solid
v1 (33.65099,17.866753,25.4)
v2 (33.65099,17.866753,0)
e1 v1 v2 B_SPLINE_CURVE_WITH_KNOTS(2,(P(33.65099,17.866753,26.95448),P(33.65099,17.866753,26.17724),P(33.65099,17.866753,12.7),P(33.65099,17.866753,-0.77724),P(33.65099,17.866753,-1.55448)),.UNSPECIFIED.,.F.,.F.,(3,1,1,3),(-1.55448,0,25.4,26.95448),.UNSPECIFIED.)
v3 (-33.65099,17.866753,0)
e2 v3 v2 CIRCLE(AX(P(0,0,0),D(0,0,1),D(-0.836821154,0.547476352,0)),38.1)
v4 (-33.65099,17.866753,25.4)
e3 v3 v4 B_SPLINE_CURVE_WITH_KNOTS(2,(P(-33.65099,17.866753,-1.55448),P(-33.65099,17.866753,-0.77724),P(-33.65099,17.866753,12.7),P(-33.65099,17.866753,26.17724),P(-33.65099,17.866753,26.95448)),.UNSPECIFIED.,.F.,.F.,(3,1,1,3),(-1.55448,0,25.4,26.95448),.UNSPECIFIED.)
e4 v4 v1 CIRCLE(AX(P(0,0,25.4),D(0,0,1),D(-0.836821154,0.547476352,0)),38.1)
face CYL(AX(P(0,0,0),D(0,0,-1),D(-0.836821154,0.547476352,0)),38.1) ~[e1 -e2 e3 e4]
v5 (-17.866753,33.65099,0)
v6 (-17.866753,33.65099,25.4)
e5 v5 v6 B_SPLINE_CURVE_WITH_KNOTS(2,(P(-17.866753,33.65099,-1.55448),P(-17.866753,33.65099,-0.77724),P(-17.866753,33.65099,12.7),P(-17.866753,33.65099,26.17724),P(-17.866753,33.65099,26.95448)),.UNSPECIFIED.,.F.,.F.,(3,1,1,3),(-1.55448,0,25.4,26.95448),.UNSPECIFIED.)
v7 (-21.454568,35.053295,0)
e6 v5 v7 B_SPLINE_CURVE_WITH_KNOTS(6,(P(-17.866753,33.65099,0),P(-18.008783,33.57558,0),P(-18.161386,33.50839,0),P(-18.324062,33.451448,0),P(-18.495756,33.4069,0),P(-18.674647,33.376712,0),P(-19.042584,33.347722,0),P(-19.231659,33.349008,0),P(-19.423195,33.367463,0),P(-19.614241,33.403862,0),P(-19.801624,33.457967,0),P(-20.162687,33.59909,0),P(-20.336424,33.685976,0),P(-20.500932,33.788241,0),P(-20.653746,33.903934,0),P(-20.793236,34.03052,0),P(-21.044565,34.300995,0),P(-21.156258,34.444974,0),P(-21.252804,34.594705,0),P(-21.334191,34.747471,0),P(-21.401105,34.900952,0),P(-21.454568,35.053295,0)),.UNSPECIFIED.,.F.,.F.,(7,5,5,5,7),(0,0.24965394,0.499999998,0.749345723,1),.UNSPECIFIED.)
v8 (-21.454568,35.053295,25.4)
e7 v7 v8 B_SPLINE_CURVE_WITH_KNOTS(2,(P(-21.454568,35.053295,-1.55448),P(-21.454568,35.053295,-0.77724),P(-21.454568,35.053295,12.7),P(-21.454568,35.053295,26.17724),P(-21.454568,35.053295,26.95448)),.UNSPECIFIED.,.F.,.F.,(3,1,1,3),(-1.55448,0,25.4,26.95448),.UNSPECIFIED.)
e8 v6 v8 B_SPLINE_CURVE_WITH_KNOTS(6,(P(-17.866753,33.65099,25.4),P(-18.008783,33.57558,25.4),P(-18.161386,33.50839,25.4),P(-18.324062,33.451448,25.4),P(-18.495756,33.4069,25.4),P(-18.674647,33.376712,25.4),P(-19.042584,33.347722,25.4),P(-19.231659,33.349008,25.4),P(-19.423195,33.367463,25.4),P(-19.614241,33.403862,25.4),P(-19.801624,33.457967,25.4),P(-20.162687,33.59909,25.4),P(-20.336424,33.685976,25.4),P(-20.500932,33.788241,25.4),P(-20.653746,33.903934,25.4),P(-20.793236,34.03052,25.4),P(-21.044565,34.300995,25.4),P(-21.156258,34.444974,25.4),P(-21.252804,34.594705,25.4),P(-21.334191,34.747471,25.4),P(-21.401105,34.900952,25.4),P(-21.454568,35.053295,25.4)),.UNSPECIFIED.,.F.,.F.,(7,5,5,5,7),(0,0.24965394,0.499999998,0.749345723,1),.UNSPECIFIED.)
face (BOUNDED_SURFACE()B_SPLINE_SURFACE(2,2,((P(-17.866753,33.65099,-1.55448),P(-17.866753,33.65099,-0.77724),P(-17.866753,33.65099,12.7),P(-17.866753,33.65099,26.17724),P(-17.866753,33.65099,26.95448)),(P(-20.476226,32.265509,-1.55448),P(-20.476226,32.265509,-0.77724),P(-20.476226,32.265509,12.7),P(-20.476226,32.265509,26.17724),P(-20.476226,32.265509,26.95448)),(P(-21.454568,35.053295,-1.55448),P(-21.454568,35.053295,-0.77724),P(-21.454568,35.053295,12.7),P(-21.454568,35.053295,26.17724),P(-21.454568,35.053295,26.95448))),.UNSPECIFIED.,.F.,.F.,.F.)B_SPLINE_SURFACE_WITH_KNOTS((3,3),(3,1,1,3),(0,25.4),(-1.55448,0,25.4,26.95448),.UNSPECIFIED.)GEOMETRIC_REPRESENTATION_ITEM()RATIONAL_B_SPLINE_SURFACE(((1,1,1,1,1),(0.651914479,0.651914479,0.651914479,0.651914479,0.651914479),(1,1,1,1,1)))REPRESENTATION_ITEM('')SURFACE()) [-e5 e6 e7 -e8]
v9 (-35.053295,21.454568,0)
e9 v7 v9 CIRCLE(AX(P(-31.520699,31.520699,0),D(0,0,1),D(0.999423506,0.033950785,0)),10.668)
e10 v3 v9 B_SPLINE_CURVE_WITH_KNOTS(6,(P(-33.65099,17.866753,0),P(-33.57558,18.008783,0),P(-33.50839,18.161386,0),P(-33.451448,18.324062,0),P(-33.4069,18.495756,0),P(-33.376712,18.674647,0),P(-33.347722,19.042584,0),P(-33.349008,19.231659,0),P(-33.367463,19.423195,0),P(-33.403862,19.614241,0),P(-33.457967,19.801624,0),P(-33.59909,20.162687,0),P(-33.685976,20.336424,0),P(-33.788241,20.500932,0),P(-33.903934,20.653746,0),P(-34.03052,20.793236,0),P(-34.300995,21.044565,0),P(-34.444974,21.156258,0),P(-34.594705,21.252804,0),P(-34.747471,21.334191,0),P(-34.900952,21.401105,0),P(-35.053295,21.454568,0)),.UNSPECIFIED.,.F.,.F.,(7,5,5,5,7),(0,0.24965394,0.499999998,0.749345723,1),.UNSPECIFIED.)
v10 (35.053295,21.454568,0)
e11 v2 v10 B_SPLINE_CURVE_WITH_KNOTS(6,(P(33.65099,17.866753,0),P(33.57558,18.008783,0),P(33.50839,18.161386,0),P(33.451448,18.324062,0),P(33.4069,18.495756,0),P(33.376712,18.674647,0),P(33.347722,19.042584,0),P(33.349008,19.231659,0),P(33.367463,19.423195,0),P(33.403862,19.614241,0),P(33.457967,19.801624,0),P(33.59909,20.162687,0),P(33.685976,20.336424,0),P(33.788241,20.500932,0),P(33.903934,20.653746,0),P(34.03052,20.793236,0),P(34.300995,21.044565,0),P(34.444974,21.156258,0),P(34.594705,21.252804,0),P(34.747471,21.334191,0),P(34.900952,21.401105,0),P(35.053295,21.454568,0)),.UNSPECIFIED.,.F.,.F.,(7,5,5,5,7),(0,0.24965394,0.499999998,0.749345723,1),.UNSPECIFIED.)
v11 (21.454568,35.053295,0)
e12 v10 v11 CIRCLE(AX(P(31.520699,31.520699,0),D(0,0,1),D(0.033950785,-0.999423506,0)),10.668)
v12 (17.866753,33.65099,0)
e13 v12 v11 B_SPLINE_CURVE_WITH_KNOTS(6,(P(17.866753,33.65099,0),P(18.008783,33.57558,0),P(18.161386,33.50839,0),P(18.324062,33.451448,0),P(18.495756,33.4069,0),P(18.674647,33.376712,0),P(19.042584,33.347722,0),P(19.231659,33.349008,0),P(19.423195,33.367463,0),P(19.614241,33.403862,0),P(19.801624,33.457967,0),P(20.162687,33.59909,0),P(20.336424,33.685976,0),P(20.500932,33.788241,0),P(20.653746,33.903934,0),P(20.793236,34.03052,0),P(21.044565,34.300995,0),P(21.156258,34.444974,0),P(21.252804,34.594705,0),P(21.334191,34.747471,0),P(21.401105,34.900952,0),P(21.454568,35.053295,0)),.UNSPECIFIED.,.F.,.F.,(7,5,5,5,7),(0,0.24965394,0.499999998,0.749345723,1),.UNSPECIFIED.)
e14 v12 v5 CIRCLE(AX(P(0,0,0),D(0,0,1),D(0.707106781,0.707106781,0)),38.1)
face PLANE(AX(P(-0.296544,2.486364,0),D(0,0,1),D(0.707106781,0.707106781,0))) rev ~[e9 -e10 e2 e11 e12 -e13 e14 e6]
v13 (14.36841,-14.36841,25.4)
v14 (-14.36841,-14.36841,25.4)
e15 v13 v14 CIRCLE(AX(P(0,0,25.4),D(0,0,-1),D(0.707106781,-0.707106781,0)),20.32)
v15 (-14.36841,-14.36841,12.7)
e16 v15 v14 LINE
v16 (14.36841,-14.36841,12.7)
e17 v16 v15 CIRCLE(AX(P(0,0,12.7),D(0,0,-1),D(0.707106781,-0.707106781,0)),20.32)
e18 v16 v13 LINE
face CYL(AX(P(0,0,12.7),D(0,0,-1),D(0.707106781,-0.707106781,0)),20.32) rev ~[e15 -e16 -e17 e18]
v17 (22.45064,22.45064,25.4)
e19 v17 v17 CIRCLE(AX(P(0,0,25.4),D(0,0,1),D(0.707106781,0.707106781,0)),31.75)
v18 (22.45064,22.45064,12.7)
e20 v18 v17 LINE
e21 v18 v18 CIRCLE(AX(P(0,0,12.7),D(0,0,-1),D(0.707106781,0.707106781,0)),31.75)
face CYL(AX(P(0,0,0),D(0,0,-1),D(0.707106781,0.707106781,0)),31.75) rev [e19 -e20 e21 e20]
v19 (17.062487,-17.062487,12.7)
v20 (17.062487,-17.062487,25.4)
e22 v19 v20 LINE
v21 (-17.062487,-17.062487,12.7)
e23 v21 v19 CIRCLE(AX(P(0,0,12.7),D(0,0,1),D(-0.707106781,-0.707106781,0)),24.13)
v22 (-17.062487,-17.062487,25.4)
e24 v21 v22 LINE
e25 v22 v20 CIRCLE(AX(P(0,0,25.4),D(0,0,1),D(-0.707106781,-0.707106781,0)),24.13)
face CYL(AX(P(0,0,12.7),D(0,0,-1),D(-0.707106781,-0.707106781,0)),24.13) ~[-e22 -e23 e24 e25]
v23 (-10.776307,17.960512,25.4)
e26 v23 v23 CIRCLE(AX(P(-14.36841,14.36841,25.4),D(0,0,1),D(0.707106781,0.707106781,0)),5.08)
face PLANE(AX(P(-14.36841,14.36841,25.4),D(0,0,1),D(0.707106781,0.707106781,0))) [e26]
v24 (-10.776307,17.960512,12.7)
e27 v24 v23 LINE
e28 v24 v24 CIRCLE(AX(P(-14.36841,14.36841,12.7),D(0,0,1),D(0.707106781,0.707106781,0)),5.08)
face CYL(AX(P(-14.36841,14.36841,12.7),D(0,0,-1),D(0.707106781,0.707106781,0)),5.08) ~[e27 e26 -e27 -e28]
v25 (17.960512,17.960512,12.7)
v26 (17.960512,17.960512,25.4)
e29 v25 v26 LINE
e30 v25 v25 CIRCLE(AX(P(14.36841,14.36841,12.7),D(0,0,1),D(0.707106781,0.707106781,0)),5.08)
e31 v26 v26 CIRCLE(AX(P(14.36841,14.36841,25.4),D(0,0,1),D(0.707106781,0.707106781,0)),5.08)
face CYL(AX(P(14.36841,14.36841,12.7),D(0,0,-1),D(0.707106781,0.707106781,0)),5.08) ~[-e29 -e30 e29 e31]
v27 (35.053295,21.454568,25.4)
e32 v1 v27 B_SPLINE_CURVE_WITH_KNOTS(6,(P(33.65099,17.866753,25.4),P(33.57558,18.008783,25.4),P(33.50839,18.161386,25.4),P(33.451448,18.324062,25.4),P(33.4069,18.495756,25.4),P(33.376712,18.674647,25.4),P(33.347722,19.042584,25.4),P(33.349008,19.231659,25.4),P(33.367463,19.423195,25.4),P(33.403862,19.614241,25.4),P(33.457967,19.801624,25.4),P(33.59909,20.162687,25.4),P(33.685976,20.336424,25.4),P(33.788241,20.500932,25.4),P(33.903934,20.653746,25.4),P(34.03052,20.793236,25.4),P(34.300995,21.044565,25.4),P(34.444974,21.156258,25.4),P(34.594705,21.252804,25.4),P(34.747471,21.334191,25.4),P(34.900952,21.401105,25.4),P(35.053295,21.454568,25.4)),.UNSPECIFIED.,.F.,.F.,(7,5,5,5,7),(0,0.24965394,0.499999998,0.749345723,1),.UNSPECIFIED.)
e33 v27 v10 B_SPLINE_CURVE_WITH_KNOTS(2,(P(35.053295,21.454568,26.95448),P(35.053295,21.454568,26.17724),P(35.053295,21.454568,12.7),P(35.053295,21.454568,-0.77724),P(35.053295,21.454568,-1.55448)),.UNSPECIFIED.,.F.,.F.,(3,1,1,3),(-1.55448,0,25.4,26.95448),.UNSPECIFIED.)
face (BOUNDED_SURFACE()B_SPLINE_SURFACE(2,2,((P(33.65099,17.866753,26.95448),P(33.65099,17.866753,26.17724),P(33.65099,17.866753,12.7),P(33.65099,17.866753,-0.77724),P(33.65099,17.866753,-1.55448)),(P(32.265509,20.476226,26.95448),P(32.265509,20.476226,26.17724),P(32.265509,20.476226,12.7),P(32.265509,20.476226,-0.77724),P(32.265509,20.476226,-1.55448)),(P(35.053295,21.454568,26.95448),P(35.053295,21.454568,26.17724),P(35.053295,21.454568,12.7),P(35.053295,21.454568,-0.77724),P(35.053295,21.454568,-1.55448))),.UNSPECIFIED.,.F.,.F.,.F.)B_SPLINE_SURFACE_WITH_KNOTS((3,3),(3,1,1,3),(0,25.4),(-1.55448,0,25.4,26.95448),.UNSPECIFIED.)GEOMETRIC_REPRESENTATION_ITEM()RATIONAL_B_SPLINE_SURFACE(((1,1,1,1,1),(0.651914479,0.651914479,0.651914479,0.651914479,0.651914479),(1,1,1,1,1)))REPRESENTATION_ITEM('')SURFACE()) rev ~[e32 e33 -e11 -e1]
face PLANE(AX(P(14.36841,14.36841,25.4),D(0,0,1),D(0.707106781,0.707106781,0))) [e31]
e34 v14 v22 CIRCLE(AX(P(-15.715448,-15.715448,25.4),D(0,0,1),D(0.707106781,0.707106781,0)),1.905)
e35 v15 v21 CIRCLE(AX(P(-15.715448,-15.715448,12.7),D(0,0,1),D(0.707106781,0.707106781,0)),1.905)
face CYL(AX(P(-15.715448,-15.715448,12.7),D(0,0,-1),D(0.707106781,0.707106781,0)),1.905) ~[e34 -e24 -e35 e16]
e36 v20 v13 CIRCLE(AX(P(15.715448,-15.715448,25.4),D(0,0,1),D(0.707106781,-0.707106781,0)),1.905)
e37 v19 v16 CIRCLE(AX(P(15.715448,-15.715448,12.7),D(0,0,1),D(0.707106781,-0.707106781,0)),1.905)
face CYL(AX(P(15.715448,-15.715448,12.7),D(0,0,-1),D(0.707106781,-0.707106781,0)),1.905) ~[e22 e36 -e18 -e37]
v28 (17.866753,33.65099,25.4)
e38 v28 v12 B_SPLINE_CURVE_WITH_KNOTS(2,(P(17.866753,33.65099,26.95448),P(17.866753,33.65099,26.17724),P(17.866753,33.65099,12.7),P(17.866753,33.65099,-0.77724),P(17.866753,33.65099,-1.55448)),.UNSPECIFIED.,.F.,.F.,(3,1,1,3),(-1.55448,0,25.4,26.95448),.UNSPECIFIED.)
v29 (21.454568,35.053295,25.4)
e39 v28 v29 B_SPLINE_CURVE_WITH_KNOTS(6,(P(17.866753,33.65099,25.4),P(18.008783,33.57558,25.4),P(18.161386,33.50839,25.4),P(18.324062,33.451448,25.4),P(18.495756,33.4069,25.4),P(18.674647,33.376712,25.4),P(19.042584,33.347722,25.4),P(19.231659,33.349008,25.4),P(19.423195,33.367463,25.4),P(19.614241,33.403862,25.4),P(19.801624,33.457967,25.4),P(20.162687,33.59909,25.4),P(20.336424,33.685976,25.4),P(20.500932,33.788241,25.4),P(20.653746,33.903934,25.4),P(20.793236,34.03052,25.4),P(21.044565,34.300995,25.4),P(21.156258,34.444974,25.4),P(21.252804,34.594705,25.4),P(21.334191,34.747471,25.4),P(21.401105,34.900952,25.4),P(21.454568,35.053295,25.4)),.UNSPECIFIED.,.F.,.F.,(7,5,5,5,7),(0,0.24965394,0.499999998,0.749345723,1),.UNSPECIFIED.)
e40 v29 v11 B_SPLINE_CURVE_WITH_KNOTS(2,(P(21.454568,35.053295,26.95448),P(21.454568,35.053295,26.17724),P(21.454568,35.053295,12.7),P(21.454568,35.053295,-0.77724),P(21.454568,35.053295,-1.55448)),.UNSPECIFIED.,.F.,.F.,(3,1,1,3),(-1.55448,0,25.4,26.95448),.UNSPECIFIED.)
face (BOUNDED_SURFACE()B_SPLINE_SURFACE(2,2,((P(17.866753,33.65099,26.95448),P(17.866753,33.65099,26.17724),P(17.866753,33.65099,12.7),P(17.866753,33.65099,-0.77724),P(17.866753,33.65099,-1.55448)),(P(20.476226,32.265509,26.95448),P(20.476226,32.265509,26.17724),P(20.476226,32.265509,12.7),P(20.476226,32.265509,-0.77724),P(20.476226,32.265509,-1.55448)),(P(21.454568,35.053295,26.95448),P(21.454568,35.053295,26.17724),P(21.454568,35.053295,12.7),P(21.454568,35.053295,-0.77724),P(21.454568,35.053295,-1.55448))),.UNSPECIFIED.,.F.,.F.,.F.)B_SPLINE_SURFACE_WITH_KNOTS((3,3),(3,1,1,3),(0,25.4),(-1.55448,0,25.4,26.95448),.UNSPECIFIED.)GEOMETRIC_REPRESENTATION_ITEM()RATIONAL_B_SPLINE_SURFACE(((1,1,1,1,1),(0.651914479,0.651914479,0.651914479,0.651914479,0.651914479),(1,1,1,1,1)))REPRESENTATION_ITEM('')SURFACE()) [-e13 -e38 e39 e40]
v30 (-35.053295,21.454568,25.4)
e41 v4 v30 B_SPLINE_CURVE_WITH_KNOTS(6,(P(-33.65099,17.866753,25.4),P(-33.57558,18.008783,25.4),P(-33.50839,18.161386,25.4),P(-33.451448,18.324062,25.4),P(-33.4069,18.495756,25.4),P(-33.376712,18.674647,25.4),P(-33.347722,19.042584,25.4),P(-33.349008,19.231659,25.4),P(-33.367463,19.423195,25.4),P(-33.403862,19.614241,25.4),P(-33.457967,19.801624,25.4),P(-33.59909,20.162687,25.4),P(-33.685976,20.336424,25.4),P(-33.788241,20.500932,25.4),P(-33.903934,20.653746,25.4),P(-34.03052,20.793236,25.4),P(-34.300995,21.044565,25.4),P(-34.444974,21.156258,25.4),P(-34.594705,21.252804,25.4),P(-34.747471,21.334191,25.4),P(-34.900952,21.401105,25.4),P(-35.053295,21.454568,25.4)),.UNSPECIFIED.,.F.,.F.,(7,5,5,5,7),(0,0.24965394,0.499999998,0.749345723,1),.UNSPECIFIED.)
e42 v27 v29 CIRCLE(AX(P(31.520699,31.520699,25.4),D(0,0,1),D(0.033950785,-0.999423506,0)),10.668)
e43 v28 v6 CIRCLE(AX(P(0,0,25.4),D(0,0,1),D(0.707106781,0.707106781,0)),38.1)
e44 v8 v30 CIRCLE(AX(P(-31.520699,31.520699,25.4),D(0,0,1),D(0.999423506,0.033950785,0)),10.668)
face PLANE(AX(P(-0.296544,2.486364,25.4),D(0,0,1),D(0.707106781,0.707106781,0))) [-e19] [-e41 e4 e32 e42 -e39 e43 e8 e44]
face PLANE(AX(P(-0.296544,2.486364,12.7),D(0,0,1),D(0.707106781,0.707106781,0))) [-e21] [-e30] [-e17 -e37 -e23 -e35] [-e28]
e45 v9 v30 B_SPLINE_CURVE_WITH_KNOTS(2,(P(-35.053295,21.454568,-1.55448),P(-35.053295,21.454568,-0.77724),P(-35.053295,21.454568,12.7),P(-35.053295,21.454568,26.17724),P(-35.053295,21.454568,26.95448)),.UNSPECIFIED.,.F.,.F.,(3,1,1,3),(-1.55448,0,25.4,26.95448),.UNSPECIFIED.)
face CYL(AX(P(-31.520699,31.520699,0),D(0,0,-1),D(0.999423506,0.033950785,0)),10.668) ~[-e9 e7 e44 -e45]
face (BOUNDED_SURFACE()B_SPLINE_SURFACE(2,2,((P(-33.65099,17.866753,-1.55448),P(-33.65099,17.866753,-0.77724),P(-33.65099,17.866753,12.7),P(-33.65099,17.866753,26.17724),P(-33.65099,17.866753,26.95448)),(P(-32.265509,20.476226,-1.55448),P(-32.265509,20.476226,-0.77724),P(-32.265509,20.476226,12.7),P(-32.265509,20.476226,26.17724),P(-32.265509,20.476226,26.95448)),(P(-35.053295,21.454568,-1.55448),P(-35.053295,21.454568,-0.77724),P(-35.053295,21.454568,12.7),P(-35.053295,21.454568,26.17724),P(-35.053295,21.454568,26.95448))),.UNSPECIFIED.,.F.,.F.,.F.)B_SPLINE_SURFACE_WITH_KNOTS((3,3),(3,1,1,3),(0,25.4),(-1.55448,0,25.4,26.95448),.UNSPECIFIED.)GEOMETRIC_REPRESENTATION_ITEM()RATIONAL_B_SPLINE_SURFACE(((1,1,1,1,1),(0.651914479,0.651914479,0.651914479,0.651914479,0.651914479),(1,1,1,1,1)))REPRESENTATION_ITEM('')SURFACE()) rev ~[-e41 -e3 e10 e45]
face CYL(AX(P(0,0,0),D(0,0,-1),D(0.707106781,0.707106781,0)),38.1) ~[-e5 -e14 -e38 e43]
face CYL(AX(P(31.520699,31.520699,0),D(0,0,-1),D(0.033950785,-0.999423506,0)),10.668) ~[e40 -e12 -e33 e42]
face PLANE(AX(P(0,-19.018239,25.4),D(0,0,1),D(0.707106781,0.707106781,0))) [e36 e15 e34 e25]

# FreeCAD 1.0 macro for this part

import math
import FreeCAD as App
import Part
import Sketcher
from FreeCAD import Vector
Q = App.Units.Quantity


def edges_at(feature, points):
    """Names of the edges that pass closest to the given points."""
    edges = feature.Shape.Edges
    near = lambda p: min(range(len(edges)), key=lambda i: edges[i].distToShape(Part.Vertex(*p))[0])
    return sorted({f"Edge{near(p) + 1}" for p in points})

doc = App.newDocument("Part")
body = doc.addObject("PartDesign::Body", "Body")

# Sketch on XY plane
sketch1 = body.newObject("Sketcher::SketchObject", "Sketch")
sketch1.AttachmentSupport = (doc.getObject("XY_Plane"), [""])
sketch1.MapMode = "FlatFace"
sketch1.addGeometry(Part.ArcOfCircle(Part.Circle(Vector(0, 0, 0), Vector(0, 0, 1), 38.1), math.radians(11.805948), math.radians(78.194052)), False)
sketch1.addGeometry(Part.ArcOfCircle(Part.Circle(Vector(0, 44.577, 0), Vector(0, 0, 1), 10.668), math.radians(-43.054389), math.radians(223.054389)), False)
sketch1.addGeometry(Part.ArcOfCircle(Part.Circle(Vector(0, 0, 0), Vector(0, 0, 1), 38.1), math.radians(101.805948), math.radians(348.194052)), False)
sketch1.addGeometry(Part.ArcOfCircle(Part.Circle(Vector(44.577, 0, 0), Vector(0, 0, 1), 10.668), math.radians(-133.054389), math.radians(133.054389)), False)
sketch1.addConstraint(Sketcher.Constraint("Coincident", 0, 2, 1, 1))
sketch1.addConstraint(Sketcher.Constraint("Coincident", 1, 2, 2, 1))
sketch1.addConstraint(Sketcher.Constraint("Coincident", 2, 2, 3, 1))
sketch1.addConstraint(Sketcher.Constraint("Coincident", 3, 2, 0, 1))
sketch1.addConstraint(Sketcher.Constraint("Coincident", 0, 3, -1, 1))
sketch1.addConstraint(Sketcher.Constraint("Coincident", 2, 3, -1, 1))
sketch1.addConstraint(Sketcher.Constraint("Equal", 0, 2))
sketch1.addConstraint(Sketcher.Constraint("Equal", 1, 3))
sketch1.addConstraint(Sketcher.Constraint("PointOnObject", 1, 3, -2))
sketch1.addConstraint(Sketcher.Constraint("PointOnObject", 3, 3, -1))
sketch1.addConstraint(Sketcher.Constraint("Radius", 0, Q("1.5 in")))
sketch1.addConstraint(Sketcher.Constraint("Radius", 1, Q("0.42 in")))
sketch1.addConstraint(Sketcher.Constraint("DistanceY", -1, 1, 1, 3, Q("1.755 in")))
sketch1.addConstraint(Sketcher.Constraint("DistanceX", -1, 1, 3, 3, Q("1.755 in")))
pad1 = body.newObject("PartDesign::Pad", "Pad")
pad1.Profile = sketch1
pad1.Length = Q("0.5 in")

# Sketch on XY plane
sketch2 = body.newObject("Sketcher::SketchObject", "Sketch001")
sketch2.AttachmentSupport = (doc.getObject("XY_Plane"), [""])
sketch2.MapMode = "FlatFace"
sketch2.AttachmentOffset = App.Placement(Vector(0, 0, 0.5 * 25.4), App.Rotation())
sketch2.addGeometry(Part.Circle(Vector(0, 20.32, 0), Vector(0, 0, 1), 5.08), False)
sketch2.addGeometry(Part.Circle(Vector(20.32, 0, 0), Vector(0, 0, 1), 5.08), False)
sketch2.addGeometry(Part.ArcOfCircle(Part.Circle(Vector(0, -22.225, 0), Vector(0, 0, 1), 1.905), math.radians(-90), math.radians(90)), False)
sketch2.addGeometry(Part.ArcOfCircle(Part.Circle(Vector(0, 0, 0), Vector(0, 0, 1), 20.32), math.radians(180), math.radians(270)), False)
sketch2.addGeometry(Part.ArcOfCircle(Part.Circle(Vector(-22.225, 0, 0), Vector(0, 0, 1), 1.905), math.radians(0), math.radians(180)), False)
sketch2.addGeometry(Part.ArcOfCircle(Part.Circle(Vector(0, 0, 0), Vector(0, 0, 1), 24.13), math.radians(180), math.radians(270)), False)
sketch2.addConstraint(Sketcher.Constraint("Tangent", 2, 2, 3, 2))
sketch2.addConstraint(Sketcher.Constraint("Tangent", 3, 1, 4, 1))
sketch2.addConstraint(Sketcher.Constraint("Tangent", 4, 2, 5, 1))
sketch2.addConstraint(Sketcher.Constraint("Tangent", 5, 2, 2, 1))
sketch2.addConstraint(Sketcher.Constraint("Coincident", 3, 3, -1, 1))
sketch2.addConstraint(Sketcher.Constraint("Coincident", 5, 3, -1, 1))
sketch2.addConstraint(Sketcher.Constraint("Equal", 0, 1))
sketch2.addConstraint(Sketcher.Constraint("PointOnObject", 0, 3, -2))
sketch2.addConstraint(Sketcher.Constraint("PointOnObject", 1, 3, -1))
sketch2.addConstraint(Sketcher.Constraint("PointOnObject", 2, 3, -2))
sketch2.addConstraint(Sketcher.Constraint("PointOnObject", 4, 3, -1))
sketch2.addConstraint(Sketcher.Constraint("Diameter", 0, Q("0.4 in")))
sketch2.addConstraint(Sketcher.Constraint("Radius", 3, Q("0.8 in")))
sketch2.addConstraint(Sketcher.Constraint("Radius", 5, Q("0.95 in")))
sketch2.addConstraint(Sketcher.Constraint("DistanceY", -1, 1, 0, 3, Q("0.8 in")))
sketch2.addConstraint(Sketcher.Constraint("DistanceX", -1, 1, 1, 3, Q("0.8 in")))
pad2 = body.newObject("PartDesign::Pad", "Pad001")
pad2.Profile = sketch2
pad2.Length = Q("0.5 in")

# Sketch on XY plane
sketch3 = body.newObject("Sketcher::SketchObject", "Sketch002")
sketch3.AttachmentSupport = (doc.getObject("XY_Plane"), [""])
sketch3.MapMode = "FlatFace"
sketch3.addGeometry(Part.ArcOfCircle(Part.Circle(Vector(0, 0, 0), Vector(0, 0, 1), 38.1), math.radians(11.805948), math.radians(78.194052)), False)
sketch3.addGeometry(Part.ArcOfCircle(Part.Circle(Vector(0, 44.577, 0), Vector(0, 0, 1), 10.668), math.radians(-43.054389), math.radians(223.054389)), False)
sketch3.addGeometry(Part.ArcOfCircle(Part.Circle(Vector(0, 0, 0), Vector(0, 0, 1), 38.1), math.radians(101.805948), math.radians(348.194052)), False)
sketch3.addGeometry(Part.ArcOfCircle(Part.Circle(Vector(44.577, 0, 0), Vector(0, 0, 1), 10.668), math.radians(-133.054389), math.radians(133.054389)), False)
sketch3.addGeometry(Part.Circle(Vector(0, 0, 0), Vector(0, 0, 1), 31.75), False)
sketch3.addConstraint(Sketcher.Constraint("Coincident", 0, 2, 1, 1))
sketch3.addConstraint(Sketcher.Constraint("Coincident", 1, 2, 2, 1))
sketch3.addConstraint(Sketcher.Constraint("Coincident", 2, 2, 3, 1))
sketch3.addConstraint(Sketcher.Constraint("Coincident", 3, 2, 0, 1))
sketch3.addConstraint(Sketcher.Constraint("Coincident", 0, 3, -1, 1))
sketch3.addConstraint(Sketcher.Constraint("Coincident", 2, 3, -1, 1))
sketch3.addConstraint(Sketcher.Constraint("Coincident", 4, 3, -1, 1))
sketch3.addConstraint(Sketcher.Constraint("Equal", 0, 2))
sketch3.addConstraint(Sketcher.Constraint("Equal", 1, 3))
sketch3.addConstraint(Sketcher.Constraint("PointOnObject", 1, 3, -2))
sketch3.addConstraint(Sketcher.Constraint("PointOnObject", 3, 3, -1))
sketch3.addConstraint(Sketcher.Constraint("Diameter", 4, Q("2.5 in")))
sketch3.addConstraint(Sketcher.Constraint("Radius", 0, Q("1.5 in")))
sketch3.addConstraint(Sketcher.Constraint("Radius", 1, Q("0.42 in")))
sketch3.addConstraint(Sketcher.Constraint("DistanceY", -1, 1, 1, 3, Q("1.755 in")))
sketch3.addConstraint(Sketcher.Constraint("DistanceX", -1, 1, 3, 3, Q("1.755 in")))
pad3 = body.newObject("PartDesign::Pad", "Pad002")
pad3.Profile = sketch3
pad3.Length = Q("1 in")
body2 = doc.addObject("PartDesign::Body", "Body001")
doc.recompute()

body.Placement = App.Placement(Vector(0, 0, 0), App.Rotation(Vector(0, 0, 1), 45))
boolean = body2.newObject("PartDesign::Boolean", "Boolean")
boolean.Type = "Fuse"
boolean.addObjects([body])
doc.recompute()

fillet = body2.newObject("PartDesign::Fillet", "Fillet")
fillet.Base = (boolean, edges_at(boolean, [
    (-20.859, 31.883, 12.7),
    (-31.883, 20.859, 12.7),
    (31.883, 20.859, 12.7),
    (20.859, 31.883, 12.7),
]))
fillet.Radius = Q("0.1 in")

doc.recompute()
